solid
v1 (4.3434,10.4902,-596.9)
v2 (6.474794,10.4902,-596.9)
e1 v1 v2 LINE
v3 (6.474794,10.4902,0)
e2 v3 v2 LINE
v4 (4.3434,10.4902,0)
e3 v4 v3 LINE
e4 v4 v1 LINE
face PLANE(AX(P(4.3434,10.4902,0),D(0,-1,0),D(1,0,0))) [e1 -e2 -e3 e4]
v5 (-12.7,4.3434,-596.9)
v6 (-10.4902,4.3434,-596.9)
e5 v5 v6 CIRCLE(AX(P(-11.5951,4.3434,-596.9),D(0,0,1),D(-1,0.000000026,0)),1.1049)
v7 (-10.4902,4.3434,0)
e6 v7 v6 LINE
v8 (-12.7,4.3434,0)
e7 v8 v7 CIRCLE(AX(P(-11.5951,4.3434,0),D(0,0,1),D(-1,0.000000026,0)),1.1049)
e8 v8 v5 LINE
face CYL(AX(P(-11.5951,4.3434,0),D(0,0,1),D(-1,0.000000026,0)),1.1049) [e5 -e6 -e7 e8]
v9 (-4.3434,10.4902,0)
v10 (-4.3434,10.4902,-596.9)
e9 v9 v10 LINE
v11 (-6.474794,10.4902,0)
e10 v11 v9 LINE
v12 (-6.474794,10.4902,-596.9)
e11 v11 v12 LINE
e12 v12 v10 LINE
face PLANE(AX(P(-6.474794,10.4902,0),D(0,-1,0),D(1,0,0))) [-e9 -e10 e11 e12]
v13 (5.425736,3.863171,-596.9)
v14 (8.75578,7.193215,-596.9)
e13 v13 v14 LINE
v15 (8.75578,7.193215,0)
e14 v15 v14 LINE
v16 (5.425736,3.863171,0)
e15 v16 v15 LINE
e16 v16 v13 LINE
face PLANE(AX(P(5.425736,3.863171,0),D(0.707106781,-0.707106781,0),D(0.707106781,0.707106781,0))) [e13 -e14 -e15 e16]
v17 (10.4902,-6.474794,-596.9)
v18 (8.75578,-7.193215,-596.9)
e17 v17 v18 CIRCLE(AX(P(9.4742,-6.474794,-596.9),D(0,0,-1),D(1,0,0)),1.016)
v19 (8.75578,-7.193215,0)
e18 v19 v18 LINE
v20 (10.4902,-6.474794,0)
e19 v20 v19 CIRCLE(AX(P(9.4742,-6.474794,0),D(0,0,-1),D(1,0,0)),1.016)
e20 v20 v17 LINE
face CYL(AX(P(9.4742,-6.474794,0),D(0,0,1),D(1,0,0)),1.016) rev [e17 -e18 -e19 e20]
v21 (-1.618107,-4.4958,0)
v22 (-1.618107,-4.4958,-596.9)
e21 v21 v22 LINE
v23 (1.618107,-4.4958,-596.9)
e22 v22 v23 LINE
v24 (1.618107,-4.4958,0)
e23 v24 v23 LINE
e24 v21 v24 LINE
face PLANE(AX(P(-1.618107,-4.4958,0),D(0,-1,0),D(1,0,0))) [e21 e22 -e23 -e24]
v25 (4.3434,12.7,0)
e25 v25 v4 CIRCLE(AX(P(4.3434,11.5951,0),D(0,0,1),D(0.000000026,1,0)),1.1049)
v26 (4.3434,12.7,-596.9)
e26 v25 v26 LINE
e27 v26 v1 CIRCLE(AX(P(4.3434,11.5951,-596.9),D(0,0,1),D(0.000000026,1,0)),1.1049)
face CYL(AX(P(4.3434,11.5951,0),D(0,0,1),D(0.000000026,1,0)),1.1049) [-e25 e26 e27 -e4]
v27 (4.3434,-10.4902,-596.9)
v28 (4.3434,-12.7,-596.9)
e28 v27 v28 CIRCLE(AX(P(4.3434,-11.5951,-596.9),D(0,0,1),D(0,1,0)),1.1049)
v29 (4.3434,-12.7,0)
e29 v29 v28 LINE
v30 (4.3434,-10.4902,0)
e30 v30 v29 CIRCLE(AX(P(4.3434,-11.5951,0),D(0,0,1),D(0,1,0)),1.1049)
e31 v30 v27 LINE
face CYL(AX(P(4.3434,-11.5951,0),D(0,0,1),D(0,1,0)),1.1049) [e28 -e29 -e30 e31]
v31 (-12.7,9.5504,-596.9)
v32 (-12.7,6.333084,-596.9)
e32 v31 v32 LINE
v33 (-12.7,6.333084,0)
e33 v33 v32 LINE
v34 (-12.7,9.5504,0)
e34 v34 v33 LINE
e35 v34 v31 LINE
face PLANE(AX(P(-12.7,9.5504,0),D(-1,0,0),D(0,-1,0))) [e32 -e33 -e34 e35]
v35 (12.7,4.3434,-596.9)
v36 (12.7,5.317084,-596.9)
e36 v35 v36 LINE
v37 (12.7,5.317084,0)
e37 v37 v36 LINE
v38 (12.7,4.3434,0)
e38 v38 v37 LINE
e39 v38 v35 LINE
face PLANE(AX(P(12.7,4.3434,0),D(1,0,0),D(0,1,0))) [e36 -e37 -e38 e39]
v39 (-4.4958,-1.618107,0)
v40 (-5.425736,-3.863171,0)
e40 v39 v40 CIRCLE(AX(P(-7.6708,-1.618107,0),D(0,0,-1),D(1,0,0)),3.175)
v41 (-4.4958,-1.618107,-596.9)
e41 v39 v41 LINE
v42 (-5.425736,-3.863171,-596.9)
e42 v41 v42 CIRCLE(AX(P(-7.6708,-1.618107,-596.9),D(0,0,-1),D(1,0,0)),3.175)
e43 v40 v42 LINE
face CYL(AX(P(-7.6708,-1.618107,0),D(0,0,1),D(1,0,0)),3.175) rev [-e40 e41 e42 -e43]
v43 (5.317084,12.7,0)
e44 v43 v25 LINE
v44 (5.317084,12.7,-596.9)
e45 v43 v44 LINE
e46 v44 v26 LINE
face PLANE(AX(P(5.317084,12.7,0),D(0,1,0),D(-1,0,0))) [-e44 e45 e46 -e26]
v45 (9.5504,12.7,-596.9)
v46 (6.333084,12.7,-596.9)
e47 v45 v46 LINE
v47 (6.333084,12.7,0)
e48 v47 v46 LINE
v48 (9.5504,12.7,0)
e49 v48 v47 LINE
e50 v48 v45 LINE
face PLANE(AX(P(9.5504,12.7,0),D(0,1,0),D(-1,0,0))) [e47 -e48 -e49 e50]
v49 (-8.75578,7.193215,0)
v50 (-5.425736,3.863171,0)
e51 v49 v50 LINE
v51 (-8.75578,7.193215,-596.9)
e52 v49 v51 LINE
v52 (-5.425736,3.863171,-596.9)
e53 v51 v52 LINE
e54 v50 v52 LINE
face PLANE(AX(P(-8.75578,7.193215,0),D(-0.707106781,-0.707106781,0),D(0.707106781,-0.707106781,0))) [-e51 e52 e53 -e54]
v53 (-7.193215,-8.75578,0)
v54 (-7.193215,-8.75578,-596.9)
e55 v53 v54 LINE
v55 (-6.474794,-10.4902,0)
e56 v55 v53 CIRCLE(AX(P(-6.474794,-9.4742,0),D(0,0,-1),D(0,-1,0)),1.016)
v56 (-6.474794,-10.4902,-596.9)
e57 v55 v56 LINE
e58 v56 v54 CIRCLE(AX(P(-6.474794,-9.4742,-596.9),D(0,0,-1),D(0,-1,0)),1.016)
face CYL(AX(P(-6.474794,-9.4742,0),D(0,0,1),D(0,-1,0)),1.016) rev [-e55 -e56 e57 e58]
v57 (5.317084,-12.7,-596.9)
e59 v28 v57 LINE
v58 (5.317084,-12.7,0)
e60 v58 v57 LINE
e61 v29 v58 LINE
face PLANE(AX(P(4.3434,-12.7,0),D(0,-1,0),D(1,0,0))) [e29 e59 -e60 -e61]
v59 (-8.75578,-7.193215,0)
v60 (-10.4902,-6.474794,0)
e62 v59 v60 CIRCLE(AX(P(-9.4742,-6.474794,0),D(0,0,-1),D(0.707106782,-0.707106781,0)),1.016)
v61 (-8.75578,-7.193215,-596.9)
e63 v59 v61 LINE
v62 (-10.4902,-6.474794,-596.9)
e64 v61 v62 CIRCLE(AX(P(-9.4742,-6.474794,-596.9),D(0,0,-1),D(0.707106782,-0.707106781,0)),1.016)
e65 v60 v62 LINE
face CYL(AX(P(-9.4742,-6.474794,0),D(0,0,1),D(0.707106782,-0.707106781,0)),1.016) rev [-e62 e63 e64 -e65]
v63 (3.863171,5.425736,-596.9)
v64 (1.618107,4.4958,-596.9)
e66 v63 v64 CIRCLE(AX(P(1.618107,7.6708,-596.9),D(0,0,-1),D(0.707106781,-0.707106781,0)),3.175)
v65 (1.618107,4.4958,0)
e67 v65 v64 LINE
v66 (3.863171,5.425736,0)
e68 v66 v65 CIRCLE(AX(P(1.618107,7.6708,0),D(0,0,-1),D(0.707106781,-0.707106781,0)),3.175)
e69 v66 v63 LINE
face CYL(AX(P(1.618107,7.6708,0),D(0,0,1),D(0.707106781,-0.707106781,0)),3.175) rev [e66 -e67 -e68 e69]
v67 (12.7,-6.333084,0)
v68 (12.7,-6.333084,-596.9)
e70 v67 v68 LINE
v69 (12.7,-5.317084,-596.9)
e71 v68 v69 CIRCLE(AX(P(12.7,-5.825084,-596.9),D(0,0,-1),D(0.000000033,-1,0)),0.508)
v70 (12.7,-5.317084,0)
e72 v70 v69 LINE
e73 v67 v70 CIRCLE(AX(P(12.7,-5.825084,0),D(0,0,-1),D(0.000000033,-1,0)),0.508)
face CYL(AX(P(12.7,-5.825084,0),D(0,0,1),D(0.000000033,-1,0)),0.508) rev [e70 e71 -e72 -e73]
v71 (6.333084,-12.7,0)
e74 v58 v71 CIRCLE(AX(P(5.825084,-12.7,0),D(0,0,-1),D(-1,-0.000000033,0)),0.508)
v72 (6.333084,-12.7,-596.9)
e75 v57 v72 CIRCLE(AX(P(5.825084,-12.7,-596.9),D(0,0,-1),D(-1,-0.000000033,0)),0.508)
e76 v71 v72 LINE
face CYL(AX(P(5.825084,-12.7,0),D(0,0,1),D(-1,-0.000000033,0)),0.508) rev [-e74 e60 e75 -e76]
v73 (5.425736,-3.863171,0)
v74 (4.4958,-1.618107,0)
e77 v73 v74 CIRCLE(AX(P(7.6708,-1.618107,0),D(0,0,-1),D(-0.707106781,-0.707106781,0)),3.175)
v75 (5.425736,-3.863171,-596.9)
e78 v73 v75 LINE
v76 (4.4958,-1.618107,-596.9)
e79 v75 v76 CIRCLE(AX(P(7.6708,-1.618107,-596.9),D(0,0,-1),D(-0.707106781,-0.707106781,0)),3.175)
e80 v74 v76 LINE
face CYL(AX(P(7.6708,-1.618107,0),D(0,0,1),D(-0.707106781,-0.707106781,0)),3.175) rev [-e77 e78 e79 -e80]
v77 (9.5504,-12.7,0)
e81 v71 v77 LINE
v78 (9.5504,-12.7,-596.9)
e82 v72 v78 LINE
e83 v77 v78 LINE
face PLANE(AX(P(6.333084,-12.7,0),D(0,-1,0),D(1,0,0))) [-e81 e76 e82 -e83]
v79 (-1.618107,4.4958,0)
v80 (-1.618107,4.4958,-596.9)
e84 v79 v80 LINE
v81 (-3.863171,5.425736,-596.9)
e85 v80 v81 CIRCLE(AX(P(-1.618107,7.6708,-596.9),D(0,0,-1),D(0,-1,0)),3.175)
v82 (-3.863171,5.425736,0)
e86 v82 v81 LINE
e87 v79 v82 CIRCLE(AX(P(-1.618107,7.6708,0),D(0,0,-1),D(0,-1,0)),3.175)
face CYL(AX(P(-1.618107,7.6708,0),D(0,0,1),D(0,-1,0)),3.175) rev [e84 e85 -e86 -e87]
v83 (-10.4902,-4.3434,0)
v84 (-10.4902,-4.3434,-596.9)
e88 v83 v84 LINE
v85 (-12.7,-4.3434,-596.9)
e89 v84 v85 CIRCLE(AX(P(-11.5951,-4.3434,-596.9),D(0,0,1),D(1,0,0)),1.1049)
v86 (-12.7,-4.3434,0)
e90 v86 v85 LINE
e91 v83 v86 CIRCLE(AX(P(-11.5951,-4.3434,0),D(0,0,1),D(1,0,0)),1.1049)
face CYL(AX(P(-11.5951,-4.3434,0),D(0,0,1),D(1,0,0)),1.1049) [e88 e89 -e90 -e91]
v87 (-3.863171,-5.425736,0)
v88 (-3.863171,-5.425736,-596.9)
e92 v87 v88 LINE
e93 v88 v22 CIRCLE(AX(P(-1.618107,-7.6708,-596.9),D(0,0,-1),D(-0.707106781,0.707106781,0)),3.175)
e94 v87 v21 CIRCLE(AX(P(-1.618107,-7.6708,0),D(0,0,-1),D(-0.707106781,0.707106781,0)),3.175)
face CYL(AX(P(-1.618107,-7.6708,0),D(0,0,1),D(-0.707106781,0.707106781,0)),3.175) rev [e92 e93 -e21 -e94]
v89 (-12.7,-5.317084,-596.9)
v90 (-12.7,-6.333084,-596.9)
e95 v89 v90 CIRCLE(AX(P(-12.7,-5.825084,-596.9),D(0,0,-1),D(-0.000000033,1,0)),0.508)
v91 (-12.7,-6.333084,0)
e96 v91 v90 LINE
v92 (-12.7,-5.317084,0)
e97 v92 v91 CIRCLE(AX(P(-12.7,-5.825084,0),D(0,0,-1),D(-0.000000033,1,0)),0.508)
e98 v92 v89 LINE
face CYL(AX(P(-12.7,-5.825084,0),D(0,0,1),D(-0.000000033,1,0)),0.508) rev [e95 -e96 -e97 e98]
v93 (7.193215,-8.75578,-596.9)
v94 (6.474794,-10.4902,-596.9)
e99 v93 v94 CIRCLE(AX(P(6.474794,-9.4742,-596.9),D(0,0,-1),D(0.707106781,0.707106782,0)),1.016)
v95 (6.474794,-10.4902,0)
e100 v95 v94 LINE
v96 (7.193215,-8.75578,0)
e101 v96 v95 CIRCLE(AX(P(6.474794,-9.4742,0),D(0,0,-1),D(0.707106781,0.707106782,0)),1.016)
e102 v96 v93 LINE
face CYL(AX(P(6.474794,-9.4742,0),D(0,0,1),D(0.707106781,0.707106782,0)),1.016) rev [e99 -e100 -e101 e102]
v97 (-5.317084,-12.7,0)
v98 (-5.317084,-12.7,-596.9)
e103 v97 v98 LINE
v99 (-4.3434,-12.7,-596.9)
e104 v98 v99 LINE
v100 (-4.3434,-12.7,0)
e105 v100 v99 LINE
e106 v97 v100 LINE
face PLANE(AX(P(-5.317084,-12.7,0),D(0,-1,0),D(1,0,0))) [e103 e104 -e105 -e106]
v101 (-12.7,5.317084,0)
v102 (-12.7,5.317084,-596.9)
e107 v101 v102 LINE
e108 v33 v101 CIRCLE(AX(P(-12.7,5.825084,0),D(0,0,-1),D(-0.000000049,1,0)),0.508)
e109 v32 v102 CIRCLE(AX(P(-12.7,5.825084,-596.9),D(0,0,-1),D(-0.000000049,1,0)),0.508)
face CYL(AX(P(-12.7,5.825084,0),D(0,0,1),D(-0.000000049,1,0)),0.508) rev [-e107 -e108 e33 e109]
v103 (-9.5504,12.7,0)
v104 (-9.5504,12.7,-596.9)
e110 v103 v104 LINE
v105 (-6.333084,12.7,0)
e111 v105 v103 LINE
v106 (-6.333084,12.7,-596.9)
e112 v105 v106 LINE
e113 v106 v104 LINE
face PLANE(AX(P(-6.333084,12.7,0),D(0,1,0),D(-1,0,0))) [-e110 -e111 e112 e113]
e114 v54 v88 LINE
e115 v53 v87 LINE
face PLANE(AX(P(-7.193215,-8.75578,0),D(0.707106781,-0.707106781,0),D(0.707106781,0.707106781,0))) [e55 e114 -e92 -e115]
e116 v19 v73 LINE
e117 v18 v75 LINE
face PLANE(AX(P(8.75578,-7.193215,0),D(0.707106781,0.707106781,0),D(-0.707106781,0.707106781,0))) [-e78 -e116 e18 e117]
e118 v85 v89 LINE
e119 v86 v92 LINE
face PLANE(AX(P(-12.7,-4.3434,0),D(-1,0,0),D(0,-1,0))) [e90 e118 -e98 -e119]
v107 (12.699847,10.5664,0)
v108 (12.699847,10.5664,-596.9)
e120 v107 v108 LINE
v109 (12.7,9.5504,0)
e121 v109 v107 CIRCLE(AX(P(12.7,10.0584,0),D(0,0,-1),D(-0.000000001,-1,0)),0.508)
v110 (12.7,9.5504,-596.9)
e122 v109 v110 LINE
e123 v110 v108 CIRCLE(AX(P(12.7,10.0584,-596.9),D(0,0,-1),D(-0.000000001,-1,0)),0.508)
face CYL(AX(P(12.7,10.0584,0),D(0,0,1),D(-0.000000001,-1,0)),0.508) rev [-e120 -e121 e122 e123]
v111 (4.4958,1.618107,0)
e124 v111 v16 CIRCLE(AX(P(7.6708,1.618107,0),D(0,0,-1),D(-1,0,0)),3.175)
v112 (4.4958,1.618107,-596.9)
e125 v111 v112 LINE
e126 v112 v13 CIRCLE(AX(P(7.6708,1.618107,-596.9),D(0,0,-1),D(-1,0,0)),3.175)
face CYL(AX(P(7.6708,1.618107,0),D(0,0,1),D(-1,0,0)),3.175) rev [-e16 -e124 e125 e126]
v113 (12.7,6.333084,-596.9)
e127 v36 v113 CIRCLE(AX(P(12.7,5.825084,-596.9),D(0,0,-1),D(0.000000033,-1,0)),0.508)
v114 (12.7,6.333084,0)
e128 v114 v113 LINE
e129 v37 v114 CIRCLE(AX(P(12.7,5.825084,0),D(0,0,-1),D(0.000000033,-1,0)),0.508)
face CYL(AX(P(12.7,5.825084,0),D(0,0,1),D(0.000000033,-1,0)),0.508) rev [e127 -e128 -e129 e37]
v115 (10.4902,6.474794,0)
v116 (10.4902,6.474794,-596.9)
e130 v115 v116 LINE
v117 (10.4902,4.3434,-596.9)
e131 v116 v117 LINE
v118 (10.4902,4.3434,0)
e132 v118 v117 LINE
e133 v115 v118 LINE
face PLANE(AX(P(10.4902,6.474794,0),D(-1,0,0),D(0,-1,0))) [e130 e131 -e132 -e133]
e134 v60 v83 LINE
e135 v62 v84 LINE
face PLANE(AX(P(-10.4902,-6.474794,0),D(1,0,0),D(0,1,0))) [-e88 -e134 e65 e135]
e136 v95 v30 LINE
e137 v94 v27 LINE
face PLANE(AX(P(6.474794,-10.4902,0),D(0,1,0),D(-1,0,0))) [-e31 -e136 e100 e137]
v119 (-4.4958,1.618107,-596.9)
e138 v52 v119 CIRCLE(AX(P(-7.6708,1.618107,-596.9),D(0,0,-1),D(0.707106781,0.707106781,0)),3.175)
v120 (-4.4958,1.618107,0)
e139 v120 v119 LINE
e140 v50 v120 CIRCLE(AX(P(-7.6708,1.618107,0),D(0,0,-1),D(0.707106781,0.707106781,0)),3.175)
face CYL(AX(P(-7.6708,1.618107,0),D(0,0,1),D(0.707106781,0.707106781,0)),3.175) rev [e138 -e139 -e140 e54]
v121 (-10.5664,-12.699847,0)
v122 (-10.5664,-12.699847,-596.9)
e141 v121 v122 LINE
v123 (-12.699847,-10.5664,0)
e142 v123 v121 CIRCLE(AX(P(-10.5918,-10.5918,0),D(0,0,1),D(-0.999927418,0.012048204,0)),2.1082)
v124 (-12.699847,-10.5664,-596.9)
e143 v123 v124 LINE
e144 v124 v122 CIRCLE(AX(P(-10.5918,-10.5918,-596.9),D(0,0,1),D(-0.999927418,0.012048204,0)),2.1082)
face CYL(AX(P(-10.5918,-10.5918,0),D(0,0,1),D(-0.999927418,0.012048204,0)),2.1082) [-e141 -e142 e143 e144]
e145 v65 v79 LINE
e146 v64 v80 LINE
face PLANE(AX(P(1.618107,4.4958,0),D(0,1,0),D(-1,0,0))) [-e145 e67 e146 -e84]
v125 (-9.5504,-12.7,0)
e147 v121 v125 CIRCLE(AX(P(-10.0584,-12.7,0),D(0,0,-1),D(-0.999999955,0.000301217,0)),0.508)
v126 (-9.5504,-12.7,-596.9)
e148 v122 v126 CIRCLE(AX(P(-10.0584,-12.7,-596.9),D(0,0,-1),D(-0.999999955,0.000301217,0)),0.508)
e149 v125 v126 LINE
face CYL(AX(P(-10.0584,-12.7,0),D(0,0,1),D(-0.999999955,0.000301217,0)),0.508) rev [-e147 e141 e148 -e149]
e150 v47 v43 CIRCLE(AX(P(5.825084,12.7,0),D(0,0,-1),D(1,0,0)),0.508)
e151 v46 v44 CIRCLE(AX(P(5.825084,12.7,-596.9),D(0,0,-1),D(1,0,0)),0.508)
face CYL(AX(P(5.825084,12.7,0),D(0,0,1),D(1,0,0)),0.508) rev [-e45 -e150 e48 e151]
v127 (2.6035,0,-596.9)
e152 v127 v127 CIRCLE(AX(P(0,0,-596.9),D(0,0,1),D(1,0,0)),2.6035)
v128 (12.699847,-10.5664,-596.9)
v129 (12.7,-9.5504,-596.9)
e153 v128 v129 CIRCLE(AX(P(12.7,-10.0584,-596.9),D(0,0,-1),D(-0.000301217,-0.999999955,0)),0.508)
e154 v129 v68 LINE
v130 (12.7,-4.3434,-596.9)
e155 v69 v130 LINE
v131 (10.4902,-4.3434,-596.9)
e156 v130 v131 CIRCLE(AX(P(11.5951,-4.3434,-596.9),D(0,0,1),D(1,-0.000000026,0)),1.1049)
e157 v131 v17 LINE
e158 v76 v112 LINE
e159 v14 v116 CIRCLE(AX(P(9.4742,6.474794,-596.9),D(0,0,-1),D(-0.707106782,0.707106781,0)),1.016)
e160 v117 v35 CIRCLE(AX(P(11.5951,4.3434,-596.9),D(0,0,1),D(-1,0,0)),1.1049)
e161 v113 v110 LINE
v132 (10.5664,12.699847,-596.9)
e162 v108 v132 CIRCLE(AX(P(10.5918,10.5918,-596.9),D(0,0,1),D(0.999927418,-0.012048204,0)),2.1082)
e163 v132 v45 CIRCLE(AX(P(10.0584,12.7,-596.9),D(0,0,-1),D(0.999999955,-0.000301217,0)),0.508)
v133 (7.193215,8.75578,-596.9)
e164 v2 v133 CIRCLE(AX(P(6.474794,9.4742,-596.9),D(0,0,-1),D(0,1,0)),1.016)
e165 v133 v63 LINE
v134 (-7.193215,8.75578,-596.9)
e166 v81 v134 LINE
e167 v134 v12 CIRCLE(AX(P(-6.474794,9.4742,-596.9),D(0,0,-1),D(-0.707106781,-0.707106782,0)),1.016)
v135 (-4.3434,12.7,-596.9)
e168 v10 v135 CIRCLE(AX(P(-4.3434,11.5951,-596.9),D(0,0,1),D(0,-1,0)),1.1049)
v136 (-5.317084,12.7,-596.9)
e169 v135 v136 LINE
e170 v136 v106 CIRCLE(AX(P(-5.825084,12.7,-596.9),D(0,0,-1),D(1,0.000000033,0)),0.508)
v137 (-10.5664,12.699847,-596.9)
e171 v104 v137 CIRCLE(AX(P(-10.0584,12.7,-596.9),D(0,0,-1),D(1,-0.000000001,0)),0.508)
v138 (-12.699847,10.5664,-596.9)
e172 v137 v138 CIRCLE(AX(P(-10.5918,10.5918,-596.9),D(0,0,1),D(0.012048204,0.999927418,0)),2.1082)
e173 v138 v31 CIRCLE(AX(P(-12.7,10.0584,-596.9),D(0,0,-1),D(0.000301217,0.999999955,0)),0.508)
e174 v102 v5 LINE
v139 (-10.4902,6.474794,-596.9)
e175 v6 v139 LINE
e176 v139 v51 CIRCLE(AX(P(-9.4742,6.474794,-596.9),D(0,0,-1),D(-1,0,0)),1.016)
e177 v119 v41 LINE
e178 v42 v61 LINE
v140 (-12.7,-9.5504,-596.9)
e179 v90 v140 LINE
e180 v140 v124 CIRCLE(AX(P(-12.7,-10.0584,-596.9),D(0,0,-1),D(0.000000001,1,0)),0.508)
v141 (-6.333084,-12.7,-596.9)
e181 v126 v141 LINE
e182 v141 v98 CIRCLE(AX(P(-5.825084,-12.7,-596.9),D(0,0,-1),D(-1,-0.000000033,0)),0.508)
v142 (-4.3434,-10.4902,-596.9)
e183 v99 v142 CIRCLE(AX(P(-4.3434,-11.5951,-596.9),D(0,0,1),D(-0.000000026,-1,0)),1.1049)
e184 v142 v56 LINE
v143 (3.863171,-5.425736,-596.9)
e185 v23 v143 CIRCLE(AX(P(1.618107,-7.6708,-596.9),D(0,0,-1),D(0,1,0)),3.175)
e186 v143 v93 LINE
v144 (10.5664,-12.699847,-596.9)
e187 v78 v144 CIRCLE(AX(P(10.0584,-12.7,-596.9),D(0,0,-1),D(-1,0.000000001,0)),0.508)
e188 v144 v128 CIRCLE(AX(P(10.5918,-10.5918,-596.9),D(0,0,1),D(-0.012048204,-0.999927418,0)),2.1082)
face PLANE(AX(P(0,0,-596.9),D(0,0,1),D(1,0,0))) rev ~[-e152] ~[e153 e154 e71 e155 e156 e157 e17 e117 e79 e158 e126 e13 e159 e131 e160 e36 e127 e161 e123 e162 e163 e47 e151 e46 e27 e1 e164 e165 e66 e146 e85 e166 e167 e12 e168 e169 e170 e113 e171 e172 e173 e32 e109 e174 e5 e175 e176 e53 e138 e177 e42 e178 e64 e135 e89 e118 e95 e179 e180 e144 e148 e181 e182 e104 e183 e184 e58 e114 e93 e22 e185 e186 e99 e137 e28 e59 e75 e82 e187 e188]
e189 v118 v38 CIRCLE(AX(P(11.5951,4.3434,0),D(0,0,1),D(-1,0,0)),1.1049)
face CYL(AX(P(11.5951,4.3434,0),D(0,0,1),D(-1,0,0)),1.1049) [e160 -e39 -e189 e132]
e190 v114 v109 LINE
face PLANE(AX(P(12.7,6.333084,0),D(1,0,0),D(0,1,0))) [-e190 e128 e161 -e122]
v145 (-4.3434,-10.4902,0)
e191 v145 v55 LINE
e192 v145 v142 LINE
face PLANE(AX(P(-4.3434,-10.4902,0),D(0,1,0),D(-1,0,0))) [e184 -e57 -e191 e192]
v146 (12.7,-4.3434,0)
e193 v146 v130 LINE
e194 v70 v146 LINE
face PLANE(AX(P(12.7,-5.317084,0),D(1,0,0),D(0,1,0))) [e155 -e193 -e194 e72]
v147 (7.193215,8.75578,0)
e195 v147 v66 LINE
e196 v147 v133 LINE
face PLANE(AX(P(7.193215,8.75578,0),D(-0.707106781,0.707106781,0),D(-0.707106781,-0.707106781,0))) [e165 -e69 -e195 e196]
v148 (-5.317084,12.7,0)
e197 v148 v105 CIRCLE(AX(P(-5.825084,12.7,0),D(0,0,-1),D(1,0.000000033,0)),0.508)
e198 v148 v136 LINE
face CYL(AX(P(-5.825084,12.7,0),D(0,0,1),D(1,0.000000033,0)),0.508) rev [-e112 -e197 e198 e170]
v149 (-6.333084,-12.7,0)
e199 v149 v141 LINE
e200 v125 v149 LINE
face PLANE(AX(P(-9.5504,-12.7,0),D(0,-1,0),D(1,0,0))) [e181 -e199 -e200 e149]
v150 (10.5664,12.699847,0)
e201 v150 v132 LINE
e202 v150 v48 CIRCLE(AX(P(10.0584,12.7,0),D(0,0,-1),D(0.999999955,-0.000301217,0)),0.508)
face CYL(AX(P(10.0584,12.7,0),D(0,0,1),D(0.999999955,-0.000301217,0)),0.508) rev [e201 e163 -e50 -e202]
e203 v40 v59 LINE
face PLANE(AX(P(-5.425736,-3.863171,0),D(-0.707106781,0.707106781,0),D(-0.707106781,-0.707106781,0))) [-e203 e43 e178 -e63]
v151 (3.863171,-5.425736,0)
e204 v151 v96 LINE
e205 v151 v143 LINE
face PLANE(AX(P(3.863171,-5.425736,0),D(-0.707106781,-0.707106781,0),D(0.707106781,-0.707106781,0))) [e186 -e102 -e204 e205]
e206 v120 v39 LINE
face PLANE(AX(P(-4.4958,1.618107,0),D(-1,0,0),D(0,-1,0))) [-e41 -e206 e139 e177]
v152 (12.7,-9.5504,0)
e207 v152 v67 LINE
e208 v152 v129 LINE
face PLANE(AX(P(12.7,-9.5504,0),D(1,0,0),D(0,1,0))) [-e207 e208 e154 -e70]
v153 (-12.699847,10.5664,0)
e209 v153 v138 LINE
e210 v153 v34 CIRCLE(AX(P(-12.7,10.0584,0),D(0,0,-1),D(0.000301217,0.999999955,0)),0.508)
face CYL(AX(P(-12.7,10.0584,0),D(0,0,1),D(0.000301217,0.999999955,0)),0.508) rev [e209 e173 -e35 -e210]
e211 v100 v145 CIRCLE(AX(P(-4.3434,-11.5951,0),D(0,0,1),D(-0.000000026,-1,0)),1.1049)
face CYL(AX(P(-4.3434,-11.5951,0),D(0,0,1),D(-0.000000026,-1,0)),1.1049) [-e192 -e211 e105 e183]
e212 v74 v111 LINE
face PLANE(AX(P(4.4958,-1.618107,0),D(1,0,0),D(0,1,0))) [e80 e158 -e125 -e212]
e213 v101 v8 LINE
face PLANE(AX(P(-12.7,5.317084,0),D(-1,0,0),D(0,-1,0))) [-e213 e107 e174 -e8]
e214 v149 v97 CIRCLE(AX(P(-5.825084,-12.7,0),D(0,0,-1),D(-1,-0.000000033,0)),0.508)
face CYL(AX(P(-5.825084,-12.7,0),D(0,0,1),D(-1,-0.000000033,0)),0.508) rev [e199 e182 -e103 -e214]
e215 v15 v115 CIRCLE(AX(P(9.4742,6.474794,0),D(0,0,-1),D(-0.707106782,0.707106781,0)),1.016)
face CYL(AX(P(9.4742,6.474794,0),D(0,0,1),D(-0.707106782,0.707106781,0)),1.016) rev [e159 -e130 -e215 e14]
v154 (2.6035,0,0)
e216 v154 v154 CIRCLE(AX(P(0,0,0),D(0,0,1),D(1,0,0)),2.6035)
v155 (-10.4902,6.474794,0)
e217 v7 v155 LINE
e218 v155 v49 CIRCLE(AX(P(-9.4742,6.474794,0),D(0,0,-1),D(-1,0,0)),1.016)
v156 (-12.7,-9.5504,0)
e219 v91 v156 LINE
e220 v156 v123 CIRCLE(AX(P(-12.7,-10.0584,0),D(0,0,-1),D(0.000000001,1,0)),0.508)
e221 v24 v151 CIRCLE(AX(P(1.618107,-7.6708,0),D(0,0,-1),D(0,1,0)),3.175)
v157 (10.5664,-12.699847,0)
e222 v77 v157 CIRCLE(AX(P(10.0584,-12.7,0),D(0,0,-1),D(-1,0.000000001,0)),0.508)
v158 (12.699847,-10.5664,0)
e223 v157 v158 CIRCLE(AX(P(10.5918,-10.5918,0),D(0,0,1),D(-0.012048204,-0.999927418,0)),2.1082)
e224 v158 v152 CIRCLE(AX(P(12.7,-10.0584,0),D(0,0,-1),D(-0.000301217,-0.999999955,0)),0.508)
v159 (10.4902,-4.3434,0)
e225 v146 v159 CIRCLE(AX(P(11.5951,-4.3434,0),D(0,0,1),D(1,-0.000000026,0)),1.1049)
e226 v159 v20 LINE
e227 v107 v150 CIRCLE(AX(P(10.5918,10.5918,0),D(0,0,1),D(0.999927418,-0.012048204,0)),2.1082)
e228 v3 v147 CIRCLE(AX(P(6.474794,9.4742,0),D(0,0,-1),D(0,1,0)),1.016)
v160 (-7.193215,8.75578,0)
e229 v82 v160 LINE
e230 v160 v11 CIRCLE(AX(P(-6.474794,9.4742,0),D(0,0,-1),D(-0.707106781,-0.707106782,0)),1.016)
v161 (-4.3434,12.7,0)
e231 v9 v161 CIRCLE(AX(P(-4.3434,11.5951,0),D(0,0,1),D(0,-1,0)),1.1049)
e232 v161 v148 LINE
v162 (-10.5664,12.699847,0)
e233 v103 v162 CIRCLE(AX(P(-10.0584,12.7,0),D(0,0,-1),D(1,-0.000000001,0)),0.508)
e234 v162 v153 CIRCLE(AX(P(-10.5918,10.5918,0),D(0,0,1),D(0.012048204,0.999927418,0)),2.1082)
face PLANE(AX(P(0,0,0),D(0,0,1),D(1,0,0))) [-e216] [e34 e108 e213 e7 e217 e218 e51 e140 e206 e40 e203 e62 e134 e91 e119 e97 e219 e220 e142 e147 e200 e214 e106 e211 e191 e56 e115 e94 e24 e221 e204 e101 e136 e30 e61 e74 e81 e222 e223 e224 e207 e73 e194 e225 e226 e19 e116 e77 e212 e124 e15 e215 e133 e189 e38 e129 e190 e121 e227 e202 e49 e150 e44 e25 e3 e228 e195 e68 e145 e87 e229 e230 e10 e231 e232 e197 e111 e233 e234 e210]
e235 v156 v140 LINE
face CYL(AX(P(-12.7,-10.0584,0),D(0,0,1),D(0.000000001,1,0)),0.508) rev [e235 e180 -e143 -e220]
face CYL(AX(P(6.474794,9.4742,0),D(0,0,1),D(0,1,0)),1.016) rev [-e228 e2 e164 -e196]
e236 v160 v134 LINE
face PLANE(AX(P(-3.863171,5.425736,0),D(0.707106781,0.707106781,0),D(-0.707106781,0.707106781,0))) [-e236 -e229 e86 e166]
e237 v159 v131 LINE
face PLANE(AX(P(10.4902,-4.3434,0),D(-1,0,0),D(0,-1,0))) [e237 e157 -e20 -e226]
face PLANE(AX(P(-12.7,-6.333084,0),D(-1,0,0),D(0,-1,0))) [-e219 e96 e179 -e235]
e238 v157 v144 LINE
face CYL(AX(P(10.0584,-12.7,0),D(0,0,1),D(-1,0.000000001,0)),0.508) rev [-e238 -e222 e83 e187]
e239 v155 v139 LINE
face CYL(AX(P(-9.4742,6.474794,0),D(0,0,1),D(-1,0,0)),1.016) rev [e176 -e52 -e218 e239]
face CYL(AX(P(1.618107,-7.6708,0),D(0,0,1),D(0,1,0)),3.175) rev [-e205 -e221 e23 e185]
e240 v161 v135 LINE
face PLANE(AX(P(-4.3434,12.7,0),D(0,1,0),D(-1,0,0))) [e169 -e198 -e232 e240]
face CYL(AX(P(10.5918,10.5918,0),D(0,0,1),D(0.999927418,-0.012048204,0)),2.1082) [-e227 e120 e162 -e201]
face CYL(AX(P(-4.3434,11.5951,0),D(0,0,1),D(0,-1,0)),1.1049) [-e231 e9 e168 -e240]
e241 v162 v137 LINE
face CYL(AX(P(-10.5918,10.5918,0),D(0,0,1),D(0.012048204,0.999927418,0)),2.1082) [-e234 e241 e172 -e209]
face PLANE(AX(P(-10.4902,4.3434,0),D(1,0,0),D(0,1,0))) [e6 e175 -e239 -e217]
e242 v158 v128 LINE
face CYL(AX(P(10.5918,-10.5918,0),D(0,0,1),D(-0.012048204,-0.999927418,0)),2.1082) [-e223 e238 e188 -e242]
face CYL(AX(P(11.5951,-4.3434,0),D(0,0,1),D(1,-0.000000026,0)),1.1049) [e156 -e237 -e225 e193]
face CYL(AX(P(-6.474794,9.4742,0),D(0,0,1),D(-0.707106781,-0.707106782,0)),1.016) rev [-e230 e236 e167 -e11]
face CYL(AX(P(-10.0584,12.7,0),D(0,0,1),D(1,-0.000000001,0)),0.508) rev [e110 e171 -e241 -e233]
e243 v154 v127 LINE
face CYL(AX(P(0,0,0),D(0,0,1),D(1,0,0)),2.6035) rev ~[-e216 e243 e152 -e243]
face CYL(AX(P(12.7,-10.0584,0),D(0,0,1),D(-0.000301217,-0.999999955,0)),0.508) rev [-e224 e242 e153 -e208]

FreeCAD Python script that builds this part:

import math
import FreeCAD as App
import Part
import Sketcher
from FreeCAD import Vector
Q = App.Units.Quantity

doc = App.newDocument("Part")
body = doc.addObject("PartDesign::Body", "Body")

# Sketch on XY plane
sketch1 = body.newObject("Sketcher::SketchObject", "Sketch")
sketch1.AttachmentSupport = (doc.getObject("XY_Plane"), [""])
sketch1.MapMode = "FlatFace"
sketch1.addGeometry([
    Part.LineSegment(Vector(-12.7, 9.5504, 0), Vector(-12.7, 6.333084, 0)),  # 0
    Part.ArcOfCircle(Part.Circle(Vector(-12.7, 5.825084, 0), Vector(0, 0, 1), 0.508), math.radians(-90.000003), math.radians(90.000003)),  # 1
    Part.LineSegment(Vector(-12.7, 5.317084, 0), Vector(-12.7, 4.3434, 0)),  # 2
    Part.ArcOfCircle(Part.Circle(Vector(-11.5951, 4.3434, 0), Vector(0, 0, 1), 1.1049), math.radians(179.999998), math.radians(360.000002)),  # 3
    Part.LineSegment(Vector(-10.4902, 4.3434, 0), Vector(-10.4902, 6.474794, 0)),  # 4
    Part.ArcOfCircle(Part.Circle(Vector(-9.4742, 6.474794, 0), Vector(0, 0, 1), 1.016), math.radians(45), math.radians(180)),  # 5
    Part.LineSegment(Vector(-8.75578, 7.193215, 0), Vector(-5.425736, 3.863171, 0)),  # 6
    Part.ArcOfCircle(Part.Circle(Vector(-7.6708, 1.618107, 0), Vector(0, 0, 1), 3.175), math.radians(0), math.radians(45)),  # 7
    Part.LineSegment(Vector(-4.4958, 1.618107, 0), Vector(-4.4958, -1.618107, 0)),  # 8
    Part.ArcOfCircle(Part.Circle(Vector(-7.6708, -1.618107, 0), Vector(0, 0, 1), 3.175), math.radians(-45), math.radians(0)),  # 9
    Part.LineSegment(Vector(-5.425736, -3.863171, 0), Vector(-8.75578, -7.193215, 0)),  # 10
    Part.ArcOfCircle(Part.Circle(Vector(-9.4742, -6.474794, 0), Vector(0, 0, 1), 1.016), math.radians(180), math.radians(315)),  # 11
    Part.LineSegment(Vector(-10.4902, -6.474794, 0), Vector(-10.4902, -4.3434, 0)),  # 12
    Part.ArcOfCircle(Part.Circle(Vector(-11.5951, -4.3434, 0), Vector(0, 0, 1), 1.1049), math.radians(0), math.radians(180)),  # 13
    Part.LineSegment(Vector(-12.7, -4.3434, 0), Vector(-12.7, -5.317084, 0)),  # 14
    Part.ArcOfCircle(Part.Circle(Vector(-12.7, -5.825084, 0), Vector(0, 0, 1), 0.508), math.radians(-90.000002), math.radians(90.000002)),  # 15
    Part.LineSegment(Vector(-12.7, -6.333084, 0), Vector(-12.7, -9.5504, 0)),  # 16
    Part.ArcOfCircle(Part.Circle(Vector(-12.7, -10.0584, 0), Vector(0, 0, 1), 0.508), math.radians(-89.982742), math.radians(90)),  # 17
    Part.ArcOfCircle(Part.Circle(Vector(-10.5918, -10.5918, 0), Vector(0, 0, 1), 2.1082), math.radians(179.309672), math.radians(270.690328)),  # 18
    Part.ArcOfCircle(Part.Circle(Vector(-10.0584, -12.7, 0), Vector(0, 0, 1), 0.508), math.radians(0), math.radians(179.982742)),  # 19
    Part.LineSegment(Vector(-9.5504, -12.7, 0), Vector(-6.333084, -12.7, 0)),  # 20
    Part.ArcOfCircle(Part.Circle(Vector(-5.825084, -12.7, 0), Vector(0, 0, 1), 0.508), math.radians(-0.000002), math.radians(180.000002)),  # 21
    Part.LineSegment(Vector(-5.317084, -12.7, 0), Vector(-4.3434, -12.7, 0)),  # 22
    Part.ArcOfCircle(Part.Circle(Vector(-4.3434, -11.5951, 0), Vector(0, 0, 1), 1.1049), math.radians(-90.000002), math.radians(90.000002)),  # 23
    Part.LineSegment(Vector(-4.3434, -10.4902, 0), Vector(-6.474794, -10.4902, 0)),  # 24
    Part.ArcOfCircle(Part.Circle(Vector(-6.474794, -9.4742, 0), Vector(0, 0, 1), 1.016), math.radians(135), math.radians(270)),  # 25
    Part.LineSegment(Vector(-7.193215, -8.75578, 0), Vector(-3.863171, -5.425736, 0)),  # 26
    Part.ArcOfCircle(Part.Circle(Vector(-1.618107, -7.6708, 0), Vector(0, 0, 1), 3.175), math.radians(90), math.radians(135)),  # 27
    Part.LineSegment(Vector(-1.618107, -4.4958, 0), Vector(1.618107, -4.4958, 0)),  # 28
    Part.ArcOfCircle(Part.Circle(Vector(1.618107, -7.6708, 0), Vector(0, 0, 1), 3.175), math.radians(45), math.radians(90)),  # 29
    Part.LineSegment(Vector(3.863171, -5.425736, 0), Vector(7.193215, -8.75578, 0)),  # 30
    Part.ArcOfCircle(Part.Circle(Vector(6.474794, -9.4742, 0), Vector(0, 0, 1), 1.016), math.radians(-90), math.radians(45)),  # 31
    Part.LineSegment(Vector(6.474794, -10.4902, 0), Vector(4.3434, -10.4902, 0)),  # 32
    Part.ArcOfCircle(Part.Circle(Vector(4.3434, -11.5951, 0), Vector(0, 0, 1), 1.1049), math.radians(90), math.radians(270)),  # 33
    Part.LineSegment(Vector(4.3434, -12.7, 0), Vector(5.317084, -12.7, 0)),  # 34
    Part.ArcOfCircle(Part.Circle(Vector(5.825084, -12.7, 0), Vector(0, 0, 1), 0.508), math.radians(-0.000002), math.radians(180.000002)),  # 35
    Part.LineSegment(Vector(6.333084, -12.7, 0), Vector(9.5504, -12.7, 0)),  # 36
    Part.ArcOfCircle(Part.Circle(Vector(10.0584, -12.7, 0), Vector(0, 0, 1), 0.508), math.radians(0.017258), math.radians(180)),  # 37
    Part.ArcOfCircle(Part.Circle(Vector(10.5918, -10.5918, 0), Vector(0, 0, 1), 2.1082), math.radians(-90.690328), math.radians(0.690328)),  # 38
    Part.ArcOfCircle(Part.Circle(Vector(12.7, -10.0584, 0), Vector(0, 0, 1), 0.508), math.radians(90), math.radians(269.982742)),  # 39
    Part.LineSegment(Vector(12.7, -9.5504, 0), Vector(12.7, -6.333084, 0)),  # 40
    Part.ArcOfCircle(Part.Circle(Vector(12.7, -5.825084, 0), Vector(0, 0, 1), 0.508), math.radians(89.999998), math.radians(270.000002)),  # 41
    Part.LineSegment(Vector(12.7, -5.317084, 0), Vector(12.7, -4.3434, 0)),  # 42
    Part.ArcOfCircle(Part.Circle(Vector(11.5951, -4.3434, 0), Vector(0, 0, 1), 1.1049), math.radians(-0.000002), math.radians(180.000002)),  # 43
    Part.LineSegment(Vector(10.4902, -4.3434, 0), Vector(10.4902, -6.474794, 0)),  # 44
    Part.ArcOfCircle(Part.Circle(Vector(9.4742, -6.474794, 0), Vector(0, 0, 1), 1.016), math.radians(-135), math.radians(0)),  # 45
    Part.LineSegment(Vector(8.75578, -7.193215, 0), Vector(5.425736, -3.863171, 0)),  # 46
    Part.ArcOfCircle(Part.Circle(Vector(7.6708, -1.618107, 0), Vector(0, 0, 1), 3.175), math.radians(180), math.radians(225)),  # 47
    Part.LineSegment(Vector(4.4958, -1.618107, 0), Vector(4.4958, 1.618107, 0)),  # 48
    Part.ArcOfCircle(Part.Circle(Vector(7.6708, 1.618107, 0), Vector(0, 0, 1), 3.175), math.radians(135), math.radians(180)),  # 49
    Part.LineSegment(Vector(5.425736, 3.863171, 0), Vector(8.75578, 7.193215, 0)),  # 50
    Part.ArcOfCircle(Part.Circle(Vector(9.4742, 6.474794, 0), Vector(0, 0, 1), 1.016), math.radians(0), math.radians(135)),  # 51
    Part.LineSegment(Vector(10.4902, 6.474794, 0), Vector(10.4902, 4.3434, 0)),  # 52
    Part.ArcOfCircle(Part.Circle(Vector(11.5951, 4.3434, 0), Vector(0, 0, 1), 1.1049), math.radians(180), math.radians(360)),  # 53
    Part.LineSegment(Vector(12.7, 4.3434, 0), Vector(12.7, 5.317084, 0)),  # 54
    Part.ArcOfCircle(Part.Circle(Vector(12.7, 5.825084, 0), Vector(0, 0, 1), 0.508), math.radians(89.999998), math.radians(270.000002)),  # 55
    Part.LineSegment(Vector(12.7, 6.333084, 0), Vector(12.7, 9.5504, 0)),  # 56
    Part.ArcOfCircle(Part.Circle(Vector(12.7, 10.0584, 0), Vector(0, 0, 1), 0.508), math.radians(90.017258), math.radians(270)),  # 57
    Part.ArcOfCircle(Part.Circle(Vector(10.5918, 10.5918, 0), Vector(0, 0, 1), 2.1082), math.radians(-0.690328), math.radians(90.690328)),  # 58
    Part.ArcOfCircle(Part.Circle(Vector(10.0584, 12.7, 0), Vector(0, 0, 1), 0.508), math.radians(180), math.radians(359.982742)),  # 59
    Part.LineSegment(Vector(9.5504, 12.7, 0), Vector(6.333084, 12.7, 0)),  # 60
    Part.ArcOfCircle(Part.Circle(Vector(5.825084, 12.7, 0), Vector(0, 0, 1), 0.508), math.radians(180), math.radians(360)),  # 61
    Part.LineSegment(Vector(5.317084, 12.7, 0), Vector(4.3434, 12.7, 0)),  # 62
    Part.ArcOfCircle(Part.Circle(Vector(4.3434, 11.5951, 0), Vector(0, 0, 1), 1.1049), math.radians(89.999998), math.radians(270.000002)),  # 63
    Part.LineSegment(Vector(4.3434, 10.4902, 0), Vector(6.474794, 10.4902, 0)),  # 64
    Part.ArcOfCircle(Part.Circle(Vector(6.474794, 9.4742, 0), Vector(0, 0, 1), 1.016), math.radians(-45), math.radians(90)),  # 65
    Part.LineSegment(Vector(7.193215, 8.75578, 0), Vector(3.863171, 5.425736, 0)),  # 66
    Part.ArcOfCircle(Part.Circle(Vector(1.618107, 7.6708, 0), Vector(0, 0, 1), 3.175), math.radians(-90), math.radians(-45)),  # 67
    Part.LineSegment(Vector(1.618107, 4.4958, 0), Vector(-1.618107, 4.4958, 0)),  # 68
    Part.ArcOfCircle(Part.Circle(Vector(-1.618107, 7.6708, 0), Vector(0, 0, 1), 3.175), math.radians(-135), math.radians(-90)),  # 69
    Part.LineSegment(Vector(-3.863171, 5.425736, 0), Vector(-7.193215, 8.75578, 0)),  # 70
    Part.ArcOfCircle(Part.Circle(Vector(-6.474794, 9.4742, 0), Vector(0, 0, 1), 1.016), math.radians(90), math.radians(225)),  # 71
    Part.LineSegment(Vector(-6.474794, 10.4902, 0), Vector(-4.3434, 10.4902, 0)),  # 72
    Part.ArcOfCircle(Part.Circle(Vector(-4.3434, 11.5951, 0), Vector(0, 0, 1), 1.1049), math.radians(-90), math.radians(90)),  # 73
    Part.LineSegment(Vector(-4.3434, 12.7, 0), Vector(-5.317084, 12.7, 0)),  # 74
    Part.ArcOfCircle(Part.Circle(Vector(-5.825084, 12.7, 0), Vector(0, 0, 1), 0.508), math.radians(179.999998), math.radians(360.000002)),  # 75
    Part.LineSegment(Vector(-6.333084, 12.7, 0), Vector(-9.5504, 12.7, 0)),  # 76
    Part.ArcOfCircle(Part.Circle(Vector(-10.0584, 12.7, 0), Vector(0, 0, 1), 0.508), math.radians(-179.982742), math.radians(0)),  # 77
    Part.ArcOfCircle(Part.Circle(Vector(-10.5918, 10.5918, 0), Vector(0, 0, 1), 2.1082), math.radians(89.309672), math.radians(180.690328)),  # 78
    Part.ArcOfCircle(Part.Circle(Vector(-12.7, 10.0584, 0), Vector(0, 0, 1), 0.508), math.radians(-90), math.radians(89.982742)),  # 79
    Part.Circle(Vector(0, 0, 0), Vector(0, 0, 1), 2.6035),  # 80
], False)
sketch1.addConstraint([
    Sketcher.Constraint("Coincident", 0, 2, 1, 2),
    Sketcher.Constraint("Coincident", 1, 1, 2, 1),
    Sketcher.Constraint("Tangent", 2, 2, 3, 1),
    Sketcher.Constraint("Tangent", 3, 2, 4, 1),
    Sketcher.Constraint("Tangent", 4, 2, 5, 2),
    Sketcher.Constraint("Tangent", 5, 1, 6, 1),
    Sketcher.Constraint("Tangent", 6, 2, 7, 2),
    Sketcher.Constraint("Tangent", 7, 1, 8, 1),
    Sketcher.Constraint("Tangent", 8, 2, 9, 2),
    Sketcher.Constraint("Tangent", 9, 1, 10, 1),
    Sketcher.Constraint("Tangent", 10, 2, 11, 2),
    Sketcher.Constraint("Tangent", 11, 1, 12, 1),
    Sketcher.Constraint("Tangent", 12, 2, 13, 1),
    Sketcher.Constraint("Tangent", 13, 2, 14, 1),
    Sketcher.Constraint("Coincident", 14, 2, 15, 2),
    Sketcher.Constraint("Coincident", 15, 1, 16, 1),
    Sketcher.Constraint("Coincident", 16, 2, 17, 2),
    Sketcher.Constraint("Coincident", 17, 1, 18, 1),
    Sketcher.Constraint("Coincident", 18, 2, 19, 2),
    Sketcher.Constraint("Coincident", 19, 1, 20, 1),
    Sketcher.Constraint("Coincident", 20, 2, 21, 2),
    Sketcher.Constraint("Coincident", 21, 1, 22, 1),
    Sketcher.Constraint("Tangent", 22, 2, 23, 1),
    Sketcher.Constraint("Tangent", 23, 2, 24, 1),
    Sketcher.Constraint("Tangent", 24, 2, 25, 2),
    Sketcher.Constraint("Tangent", 25, 1, 26, 1),
    Sketcher.Constraint("Tangent", 26, 2, 27, 2),
    Sketcher.Constraint("Tangent", 27, 1, 28, 1),
    Sketcher.Constraint("Tangent", 28, 2, 29, 2),
    Sketcher.Constraint("Tangent", 29, 1, 30, 1),
    Sketcher.Constraint("Tangent", 30, 2, 31, 2),
    Sketcher.Constraint("Tangent", 31, 1, 32, 1),
    Sketcher.Constraint("Tangent", 32, 2, 33, 1),
    Sketcher.Constraint("Tangent", 33, 2, 34, 1),
    Sketcher.Constraint("Coincident", 34, 2, 35, 2),
    Sketcher.Constraint("Coincident", 35, 1, 36, 1),
    Sketcher.Constraint("Coincident", 36, 2, 37, 2),
    Sketcher.Constraint("Coincident", 37, 1, 38, 1),
    Sketcher.Constraint("Coincident", 38, 2, 39, 2),
    Sketcher.Constraint("Coincident", 39, 1, 40, 1),
    Sketcher.Constraint("Coincident", 40, 2, 41, 2),
    Sketcher.Constraint("Coincident", 41, 1, 42, 1),
    Sketcher.Constraint("Tangent", 42, 2, 43, 1),
    Sketcher.Constraint("Tangent", 43, 2, 44, 1),
    Sketcher.Constraint("Tangent", 44, 2, 45, 2),
    Sketcher.Constraint("Tangent", 45, 1, 46, 1),
    Sketcher.Constraint("Tangent", 46, 2, 47, 2),
    Sketcher.Constraint("Tangent", 47, 1, 48, 1),
    Sketcher.Constraint("Tangent", 48, 2, 49, 2),
    Sketcher.Constraint("Tangent", 49, 1, 50, 1),
    Sketcher.Constraint("Tangent", 50, 2, 51, 2),
    Sketcher.Constraint("Tangent", 51, 1, 52, 1),
    Sketcher.Constraint("Tangent", 52, 2, 53, 1),
    Sketcher.Constraint("Tangent", 53, 2, 54, 1),
    Sketcher.Constraint("Coincident", 54, 2, 55, 2),
    Sketcher.Constraint("Coincident", 55, 1, 56, 1),
    Sketcher.Constraint("Coincident", 56, 2, 57, 2),
    Sketcher.Constraint("Coincident", 57, 1, 58, 1),
    Sketcher.Constraint("Coincident", 58, 2, 59, 2),
    Sketcher.Constraint("Coincident", 59, 1, 60, 1),
    Sketcher.Constraint("Coincident", 60, 2, 61, 2),
    Sketcher.Constraint("Coincident", 61, 1, 62, 1),
    Sketcher.Constraint("Tangent", 62, 2, 63, 1),
    Sketcher.Constraint("Tangent", 63, 2, 64, 1),
    Sketcher.Constraint("Tangent", 64, 2, 65, 2),
    Sketcher.Constraint("Tangent", 65, 1, 66, 1),
    Sketcher.Constraint("Tangent", 66, 2, 67, 2),
    Sketcher.Constraint("Tangent", 67, 1, 68, 1),
    Sketcher.Constraint("Tangent", 68, 2, 69, 2),
    Sketcher.Constraint("Tangent", 69, 1, 70, 1),
    Sketcher.Constraint("Tangent", 70, 2, 71, 2),
    Sketcher.Constraint("Tangent", 71, 1, 72, 1),
    Sketcher.Constraint("Tangent", 72, 2, 73, 1),
    Sketcher.Constraint("Tangent", 73, 2, 74, 1),
    Sketcher.Constraint("Coincident", 74, 2, 75, 2),
    Sketcher.Constraint("Coincident", 75, 1, 76, 1),
    Sketcher.Constraint("Coincident", 76, 2, 77, 2),
    Sketcher.Constraint("Coincident", 77, 1, 78, 1),
    Sketcher.Constraint("Coincident", 78, 2, 79, 2),
    Sketcher.Constraint("Coincident", 79, 1, 0, 1),
    Sketcher.Constraint("Vertical", 0),
    Sketcher.Constraint("Vertical", 2),
    Sketcher.Constraint("Vertical", 4),
    Sketcher.Constraint("Vertical", 8),
    Sketcher.Constraint("Vertical", 12),
    Sketcher.Constraint("Vertical", 14),
    Sketcher.Constraint("Vertical", 16),
    Sketcher.Constraint("Horizontal", 20),
    Sketcher.Constraint("Horizontal", 22),
    Sketcher.Constraint("Horizontal", 24),
    Sketcher.Constraint("Horizontal", 28),
    Sketcher.Constraint("Horizontal", 32),
    Sketcher.Constraint("Horizontal", 34),
    Sketcher.Constraint("Horizontal", 36),
    Sketcher.Constraint("Vertical", 40),
    Sketcher.Constraint("Vertical", 42),
    Sketcher.Constraint("Vertical", 44),
    Sketcher.Constraint("Vertical", 48),
    Sketcher.Constraint("Vertical", 52),
    Sketcher.Constraint("Vertical", 54),
    Sketcher.Constraint("Vertical", 56),
    Sketcher.Constraint("Horizontal", 60),
    Sketcher.Constraint("Horizontal", 62),
    Sketcher.Constraint("Horizontal", 64),
    Sketcher.Constraint("Horizontal", 68),
    Sketcher.Constraint("Horizontal", 72),
    Sketcher.Constraint("Horizontal", 74),
    Sketcher.Constraint("Horizontal", 76),
    Sketcher.Constraint("Coincident", 80, 3, -1, 1),
    Sketcher.Constraint("Equal", 7, 9),
    Sketcher.Constraint("Equal", 5, 11),
    Sketcher.Constraint("Equal", 3, 13),
    Sketcher.Constraint("Equal", 1, 15),
    Sketcher.Constraint("Equal", 15, 17),
    Sketcher.Constraint("Equal", 17, 19),
    Sketcher.Constraint("Equal", 19, 21),
    Sketcher.Constraint("Equal", 13, 23),
    Sketcher.Constraint("Equal", 11, 25),
    Sketcher.Constraint("Equal", 9, 27),
    Sketcher.Constraint("Equal", 27, 29),
    Sketcher.Constraint("Equal", 25, 31),
    Sketcher.Constraint("Equal", 23, 33),
    Sketcher.Constraint("Equal", 21, 35),
    Sketcher.Constraint("Equal", 35, 37),
    Sketcher.Constraint("Equal", 18, 38),
    Sketcher.Constraint("Equal", 37, 39),
    Sketcher.Constraint("Equal", 39, 41),
    Sketcher.Constraint("Equal", 33, 43),
    Sketcher.Constraint("Equal", 31, 45),
    Sketcher.Constraint("Equal", 29, 47),
    Sketcher.Constraint("Equal", 47, 49),
    Sketcher.Constraint("Equal", 45, 51),
    Sketcher.Constraint("Equal", 43, 53),
    Sketcher.Constraint("Equal", 41, 55),
    Sketcher.Constraint("Equal", 55, 57),
    Sketcher.Constraint("Equal", 38, 58),
    Sketcher.Constraint("Equal", 57, 59),
    Sketcher.Constraint("Equal", 59, 61),
    Sketcher.Constraint("Equal", 53, 63),
    Sketcher.Constraint("Equal", 51, 65),
    Sketcher.Constraint("Equal", 49, 67),
    Sketcher.Constraint("Equal", 67, 69),
    Sketcher.Constraint("Equal", 65, 71),
    Sketcher.Constraint("Equal", 63, 73),
    Sketcher.Constraint("Equal", 61, 75),
    Sketcher.Constraint("Equal", 75, 77),
    Sketcher.Constraint("Equal", 58, 78),
    Sketcher.Constraint("Equal", 77, 79),
    Sketcher.Constraint("Symmetric", 1, 3, 41, 3, -1, 1),
    Sketcher.Constraint("Symmetric", 3, 3, 43, 3, -1, 1),
    Sketcher.Constraint("Symmetric", 7, 3, 47, 3, -1, 1),
    Sketcher.Constraint("Symmetric", 11, 3, 51, 3, -1, 1),
    Sketcher.Constraint("Symmetric", 15, 3, 55, 3, -1, 1),
    Sketcher.Constraint("Symmetric", 17, 3, 57, 3, -1, 1),
    Sketcher.Constraint("Symmetric", 18, 3, 58, 3, -1, 1),
    Sketcher.Constraint("Symmetric", 19, 3, 59, 3, -1, 1),
    Sketcher.Constraint("Symmetric", 21, 3, 61, 3, -1, 1),
    Sketcher.Constraint("Symmetric", 23, 3, 63, 3, -1, 1),
    Sketcher.Constraint("Symmetric", 27, 3, 67, 3, -1, 1),
    Sketcher.Constraint("Symmetric", 31, 3, 71, 3, -1, 1),
    Sketcher.Constraint("Symmetric", 35, 3, 75, 3, -1, 1),
    Sketcher.Constraint("Symmetric", 37, 3, 77, 3, -1, 1),
    Sketcher.Constraint("Symmetric", 38, 3, 78, 3, -1, 1),
    Sketcher.Constraint("Symmetric", 39, 3, 79, 3, -1, 1),
    Sketcher.Constraint("Symmetric", 25, 3, 31, 3, -2),
    Sketcher.Constraint("Symmetric", 21, 3, 35, 3, -2),
    Sketcher.Constraint("Symmetric", 19, 3, 37, 3, -2),
    Sketcher.Constraint("Symmetric", 18, 3, 38, 3, -2),
    Sketcher.Constraint("Symmetric", 17, 3, 39, 3, -2),
    Sketcher.Constraint("Symmetric", 15, 3, 41, 3, -2),
    Sketcher.Constraint("Symmetric", 13, 3, 43, 3, -2),
    Sketcher.Constraint("Symmetric", 10, 2, 45, 1, -2),
    Sketcher.Constraint("Symmetric", 6, 2, 49, 1, -2),
    Sketcher.Constraint("Symmetric", 66, 2, 69, 1, -2),
    Sketcher.Constraint("Perpendicular", 6, 10),
    Sketcher.Constraint("Parallel", 10, 26),
    Sketcher.Constraint("Perpendicular", 26, 30),
    Sketcher.Constraint("Horizontal", 19, 3, 21, 3),
    Sketcher.Constraint("Horizontal", 3, 3, 53, 3),
    Sketcher.Constraint("Horizontal", 37, 3, 19, 1),
    Sketcher.Constraint("Horizontal", 20, 2, 21, 1),
    Sketcher.Constraint("Horizontal", 34, 2, 35, 1),
    Sketcher.Constraint("Horizontal", 77, 3, 59, 1),
    Sketcher.Constraint("Horizontal", 74, 2, 75, 1),
    Sketcher.Constraint("Vertical", 15, 3, 17, 3),
    Sketcher.Constraint("Vertical", 33, 3, 63, 3),
    Sketcher.Constraint("Vertical", 23, 3, 73, 3),
    Sketcher.Constraint("Vertical", 79, 3, 0, 2),
    Sketcher.Constraint("Vertical", 0, 2, 1, 1),
    Sketcher.Constraint("Vertical", 14, 2, 15, 1),
    Sketcher.Constraint("Vertical", 57, 3, 39, 1),
    Sketcher.Constraint("Vertical", 54, 2, 55, 1),
    Sketcher.Constraint("Equal", 76, 0),
    Sketcher.Constraint("Equal", 74, 2),
    Sketcher.Constraint("Equal", 72, 4),
    Sketcher.Constraint("Equal", 68, 8),
    Sketcher.Constraint("Equal", 10, 26),
    Sketcher.Constraint("Radius", 1, Q("0.02 in")),
    Sketcher.Constraint("Radius", 5, Q("0.04 in")),
    Sketcher.Constraint("Diameter", 80, Q("0.205 in")),
    Sketcher.Constraint("Radius", 7, Q("0.125 in")),
    Sketcher.Constraint("Radius", 18, Q("0.083 in")),
    Sketcher.Constraint("DistanceX", 1, 3, -1, 1, Q("0.5 in")),
    Sketcher.Constraint("DistanceY", 19, 3, -1, 1, Q("0.5 in")),
    Sketcher.Constraint("Radius", 3, Q("0.0435 in")),
    Sketcher.Constraint("DistanceY", -1, 1, 3, 3, Q("0.171 in")),
    Sketcher.Constraint("DistanceX", 7, 3, -1, 1, Q("0.302 in")),
    Sketcher.Constraint("DistanceY", 17, 3, -1, 1, Q("0.396 in")),
    Sketcher.Constraint("DistanceX", 18, 3, -1, 1, Q("0.417 in")),
    Sketcher.Constraint("DistanceY", 18, 3, -1, 1, Q("0.417 in")),
    Sketcher.Constraint("DistanceX", 20, 1, 20, 2, 3.217316),
    Sketcher.Constraint("DistanceX", 24, 2, 24, 1, 2.131394),
])
pad1 = body.newObject("PartDesign::Pad", "Pad")
pad1.Profile = sketch1
pad1.Length = Q("23.5 in")
pad1.Reversed = True

doc.recompute()
